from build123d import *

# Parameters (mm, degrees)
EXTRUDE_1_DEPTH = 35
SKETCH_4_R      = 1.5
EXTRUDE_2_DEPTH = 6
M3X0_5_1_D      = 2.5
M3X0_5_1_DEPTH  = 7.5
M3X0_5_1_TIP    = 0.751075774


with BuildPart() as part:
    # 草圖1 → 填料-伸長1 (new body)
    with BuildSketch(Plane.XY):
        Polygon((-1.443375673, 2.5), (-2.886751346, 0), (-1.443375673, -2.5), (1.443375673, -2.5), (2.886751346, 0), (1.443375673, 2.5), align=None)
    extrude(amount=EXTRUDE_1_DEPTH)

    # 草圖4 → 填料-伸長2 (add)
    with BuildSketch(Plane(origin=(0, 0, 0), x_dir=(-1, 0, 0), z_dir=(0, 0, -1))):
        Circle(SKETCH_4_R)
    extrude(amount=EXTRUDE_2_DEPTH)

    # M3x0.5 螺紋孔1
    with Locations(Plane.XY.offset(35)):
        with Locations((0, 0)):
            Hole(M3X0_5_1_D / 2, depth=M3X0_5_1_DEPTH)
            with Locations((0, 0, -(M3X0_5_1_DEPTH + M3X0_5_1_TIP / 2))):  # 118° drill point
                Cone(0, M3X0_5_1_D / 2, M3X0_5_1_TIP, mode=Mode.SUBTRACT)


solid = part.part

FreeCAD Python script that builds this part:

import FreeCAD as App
import Part
import Sketcher
from FreeCAD import Vector
Q = App.Units.Quantity


def add_polygon(sketch, points):
    """Adds a closed chain of lines whose ends are joined by coincident constraints."""
    first, n = sketch.GeometryCount, len(points)
    for a, b in zip(points, points[1:] + points[:1]):
        sketch.addGeometry(Part.LineSegment(App.Vector(*a, 0), App.Vector(*b, 0)), False)
    for i in range(n):
        sketch.addConstraint(Sketcher.Constraint("Coincident", first + i, 2, first + (i + 1) % n, 1))

doc = App.newDocument("Part")
body = doc.addObject("PartDesign::Body", "Body")

# Sketch on XY plane
sketch1 = body.newObject("Sketcher::SketchObject", "Sketch")
sketch1.AttachmentSupport = (doc.getObject("XY_Plane"), [""])
sketch1.MapMode = "FlatFace"
add_polygon(sketch1, [(-1.443376, 2.5), (-2.886751, 0), (-1.443376, -2.5), (1.443376, -2.5), (2.886751, 0), (1.443376, 2.5)])  # lines 0-5
sketch1.addConstraint(Sketcher.Constraint("Horizontal", 2))
sketch1.addConstraint(Sketcher.Constraint("Horizontal", 5))
sketch1.addConstraint(Sketcher.Constraint("Symmetric", 0, 2, 3, 2, -1, 1))
sketch1.addConstraint(Sketcher.Constraint("Symmetric", 1, 2, 4, 2, -1, 1))
sketch1.addConstraint(Sketcher.Constraint("PointOnObject", 0, 2, -1))
sketch1.addConstraint(Sketcher.Constraint("Parallel", 0, 3))
sketch1.addConstraint(Sketcher.Constraint("Vertical", 2, 2, 4, 2))
sketch1.addConstraint(Sketcher.Constraint("Angle", 0, Q("-120 deg")))
sketch1.addConstraint(Sketcher.Constraint("DistanceY", 2, 2, 4, 2, Q("5 mm")))
sketch1.addConstraint(Sketcher.Constraint("DistanceX", 2, 1, 2, 2, Q("2.886751 mm")))
pad1 = body.newObject("PartDesign::Pad", "Pad")
pad1.Profile = sketch1
pad1.Length = 35

# Sketch on XY plane
sketch2 = body.newObject("Sketcher::SketchObject", "Sketch001")
sketch2.AttachmentSupport = (doc.getObject("XY_Plane"), [""])
sketch2.MapMode = "FlatFace"
sketch2.addGeometry(Part.Circle(Vector(0, 0, 0), Vector(0, 0, 1), 1.5), False)
sketch2.addConstraint(Sketcher.Constraint("Coincident", 0, 3, -1, 1))
sketch2.addConstraint(Sketcher.Constraint("Diameter", 0, Q("3 mm")))
pad2 = body.newObject("PartDesign::Pad", "Pad001")
pad2.Profile = sketch2
pad2.Length = 6
pad2.Reversed = True

# Sketch on XY plane
sketch3 = body.newObject("Sketcher::SketchObject", "Sketch002")
sketch3.AttachmentSupport = (doc.getObject("XY_Plane"), [""])
sketch3.MapMode = "FlatFace"
sketch3.AttachmentOffset = App.Placement(Vector(0, 0, 35), App.Rotation())
sketch3.addGeometry(Part.Circle(Vector(0, 0, 0), Vector(0, 0, 1), 1.25), False)
sketch3.addConstraint(Sketcher.Constraint("Coincident", 0, 3, -1, 1))
sketch3.addConstraint(Sketcher.Constraint("Diameter", 0, Q("2.5 mm")))
doc.recompute()
hole = body.newObject("PartDesign::Hole", "Hole")
hole.Profile = sketch3
hole.ThreadType = "None"
hole.Diameter = 2.5
hole.DepthType = "Dimension"
hole.Depth = 7.5
hole.DrillPoint = "Angled"
hole.DrillPointAngle = 118

doc.recompute()
